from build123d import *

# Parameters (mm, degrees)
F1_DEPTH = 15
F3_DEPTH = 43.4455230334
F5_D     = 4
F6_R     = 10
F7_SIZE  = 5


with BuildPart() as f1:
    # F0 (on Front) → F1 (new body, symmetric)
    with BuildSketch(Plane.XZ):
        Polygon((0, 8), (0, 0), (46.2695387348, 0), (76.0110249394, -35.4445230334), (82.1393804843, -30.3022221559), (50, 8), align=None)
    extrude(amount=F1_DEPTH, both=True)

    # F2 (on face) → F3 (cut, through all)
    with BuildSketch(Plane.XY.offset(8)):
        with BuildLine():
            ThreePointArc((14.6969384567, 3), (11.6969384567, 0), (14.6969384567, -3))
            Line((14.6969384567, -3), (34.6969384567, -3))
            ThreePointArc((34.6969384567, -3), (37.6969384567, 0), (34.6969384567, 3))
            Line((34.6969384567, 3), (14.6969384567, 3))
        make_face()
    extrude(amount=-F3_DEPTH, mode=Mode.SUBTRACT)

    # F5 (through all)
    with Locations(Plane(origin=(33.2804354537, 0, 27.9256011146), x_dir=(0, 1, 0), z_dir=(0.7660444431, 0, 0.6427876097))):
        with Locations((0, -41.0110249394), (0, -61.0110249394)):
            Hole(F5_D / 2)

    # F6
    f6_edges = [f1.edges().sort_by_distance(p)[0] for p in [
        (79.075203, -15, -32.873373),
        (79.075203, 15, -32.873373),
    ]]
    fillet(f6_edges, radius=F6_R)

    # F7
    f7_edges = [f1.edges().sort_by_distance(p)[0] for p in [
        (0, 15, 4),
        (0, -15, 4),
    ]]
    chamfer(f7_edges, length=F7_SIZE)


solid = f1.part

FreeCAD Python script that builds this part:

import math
import FreeCAD as App
import Part
import Sketcher
from FreeCAD import Vector
Q = App.Units.Quantity


def edges_at(feature, points):
    """Names of the edges that pass closest to the given points."""
    edges = feature.Shape.Edges
    near = lambda p: min(range(len(edges)), key=lambda i: edges[i].distToShape(Part.Vertex(*p))[0])
    return sorted({f"Edge{near(p) + 1}" for p in points})


def add_polygon(sketch, points):
    """Adds a closed chain of lines whose ends are joined by coincident constraints."""
    first, n = sketch.GeometryCount, len(points)
    for a, b in zip(points, points[1:] + points[:1]):
        sketch.addGeometry(Part.LineSegment(App.Vector(*a, 0), App.Vector(*b, 0)), False)
    for i in range(n):
        sketch.addConstraint(Sketcher.Constraint("Coincident", first + i, 2, first + (i + 1) % n, 1))

doc = App.newDocument("Part")
params = doc.addObject("Spreadsheet::Sheet", "Params")
for row, (alias, value) in enumerate([
    ("sketch1_width", "50 mm"),
    ("sketch1_height", "8 mm"),
    ("sketch1_length", "8 mm"),
    ("sketch1_length2", "50 mm"),
    ("pad1_length", "30 mm"),
    ("sketch2_radius", "3 mm"),
    ("sketch2_width", "20 mm"),
    ("sketch3_diameter", "4 mm"),
    ("hole_diameter", "4 mm"),
    ("fillet_radius", "10 mm"),
    ("chamfer_size", "5 mm"),
], start=1):
    params.set(f"A{row}", alias)
    params.set(f"B{row}", "=" + value)
    params.setAlias(f"B{row}", alias)

body = doc.addObject("PartDesign::Body", "Body")

# Sketch on XZ plane
sketch1 = doc.addObject("Sketcher::SketchObject", "Sketch")
body.addObject(sketch1)
sketch1.AttachmentSupport = (doc.XZ_Plane, [""])
sketch1.MapMode = "FlatFace"
add_polygon(sketch1, [(0, 8), (0, 0), (46.269539, 0), (76.011025, -35.444523), (82.13938, -30.302222), (50, 8)])  # lines 0-5
sketch1.addConstraint(Sketcher.Constraint("Vertical", 0))
sketch1.addConstraint(Sketcher.Constraint("Horizontal", 1))
sketch1.addConstraint(Sketcher.Constraint("Horizontal", 5))
sketch1.addConstraint(Sketcher.Constraint("Coincident", 0, 2, -1, 1))
sketch1.addConstraint(Sketcher.Constraint("Perpendicular", 2, 3))
sketch1.addConstraint(Sketcher.Constraint("Perpendicular", 3, 4))
sketch1.addConstraint(Sketcher.Constraint("DistanceX", 5, 2, 5, 1, Q("50 mm")))
sketch1.addConstraint(Sketcher.Constraint("DistanceY", 0, 2, 0, 1, Q("8 mm")))
sketch1.addConstraint(Sketcher.Constraint("Angle", 2, Q("-50 deg")))
sketch1.addConstraint(Sketcher.Constraint("Distance", 3, Q("8 mm")))
sketch1.addConstraint(Sketcher.Constraint("Distance", 4, Q("50 mm")))
sketch1.setExpression("Constraints[12]", "Params.sketch1_width")
sketch1.setExpression("Constraints[13]", "Params.sketch1_height")
sketch1.setExpression("Constraints[15]", "Params.sketch1_length")
sketch1.setExpression("Constraints[16]", "Params.sketch1_length2")
pad1 = doc.addObject("PartDesign::Pad", "Pad")
body.addObject(pad1)
pad1.Profile = sketch1
pad1.setExpression("Length", "Params.pad1_length")
pad1.Midplane = True

# Sketch on XY plane
sketch2 = doc.addObject("Sketcher::SketchObject", "Sketch001")
body.addObject(sketch2)
sketch2.AttachmentSupport = (doc.XY_Plane, [""])
sketch2.MapMode = "FlatFace"
sketch2.AttachmentOffset = App.Placement(Vector(0, 0, 8), App.Rotation())
sketch2.addGeometry(Part.ArcOfCircle(Part.Circle(Vector(14.696938, 0, 0), Vector(0, 0, 1), 3), math.radians(90), math.radians(270)), False)
sketch2.addGeometry(Part.LineSegment(Vector(14.696938, -3, 0), Vector(34.696938, -3, 0)), False)
sketch2.addGeometry(Part.ArcOfCircle(Part.Circle(Vector(34.696938, 0, 0), Vector(0, 0, 1), 3), math.radians(-90), math.radians(90)), False)
sketch2.addGeometry(Part.LineSegment(Vector(34.696938, 3, 0), Vector(14.696938, 3, 0)), False)
sketch2.addConstraint(Sketcher.Constraint("Tangent", 0, 2, 1, 1))
sketch2.addConstraint(Sketcher.Constraint("Tangent", 1, 2, 2, 1))
sketch2.addConstraint(Sketcher.Constraint("Tangent", 2, 2, 3, 1))
sketch2.addConstraint(Sketcher.Constraint("Tangent", 3, 2, 0, 1))
sketch2.addConstraint(Sketcher.Constraint("Horizontal", 1))
sketch2.addConstraint(Sketcher.Constraint("Horizontal", 3))
sketch2.addConstraint(Sketcher.Constraint("PointOnObject", 0, 3, -1))
sketch2.addConstraint(Sketcher.Constraint("Radius", 0, Q("3 mm")))
sketch2.addConstraint(Sketcher.Constraint("DistanceX", 1, 1, 1, 2, Q("20 mm")))
sketch2.addConstraint(Sketcher.Constraint("DistanceX", -1, 1, 0, 3, Q("14.696938 mm")))
sketch2.setExpression("Constraints[7]", "Params.sketch2_radius")
sketch2.setExpression("Constraints[8]", "Params.sketch2_width")
pocket1 = doc.addObject("PartDesign::Pocket", "Pocket")
body.addObject(pocket1)
pocket1.Profile = sketch2
pocket1.Type = "ThroughAll"

# Sketch on an angled plane
sketch3 = doc.addObject("Sketcher::SketchObject", "Sketch002")
body.addObject(sketch3)
sketch3.Placement = App.Placement(Vector(33.280435, 0, 27.925601), App.Rotation(Vector(0, 1, 0), Vector(-0.64278761, 0, 0.766044443), Vector(0.766044443, 0, 0.64278761), "ZXY"))
sketch3.addGeometry(Part.Circle(Vector(0, -41.011025, 0), Vector(0, 0, 1), 2), False)
sketch3.addGeometry(Part.Circle(Vector(0, -61.011025, 0), Vector(0, 0, 1), 2), False)
sketch3.addConstraint(Sketcher.Constraint("Equal", 0, 1))
sketch3.addConstraint(Sketcher.Constraint("PointOnObject", 0, 3, -2))
sketch3.addConstraint(Sketcher.Constraint("PointOnObject", 1, 3, -2))
sketch3.addConstraint(Sketcher.Constraint("Diameter", 0, Q("4 mm")))
sketch3.addConstraint(Sketcher.Constraint("DistanceY", 1, 3, 0, 3, Q("20 mm")))
sketch3.addConstraint(Sketcher.Constraint("DistanceY", 0, 3, -1, 1, Q("41.011025 mm")))
sketch3.setExpression("Constraints[3]", "Params.sketch3_diameter")
doc.recompute()
hole = doc.addObject("PartDesign::Hole", "Hole")
body.addObject(hole)
hole.Profile = sketch3
hole.ThreadType = "None"
hole.setExpression("Diameter", "Params.hole_diameter")
hole.DepthType = "ThroughAll"
doc.recompute()

fillet = doc.addObject("PartDesign::Fillet", "Fillet")
body.addObject(fillet)
fillet.Base = (hole, edges_at(hole, [(79.075, -15, -32.873), (79.075, 15, -32.873)]))
fillet.setExpression("Radius", "Params.fillet_radius")
doc.recompute()

chamfer = doc.addObject("PartDesign::Chamfer", "Chamfer")
body.addObject(chamfer)
chamfer.Base = (fillet, edges_at(fillet, [(0, 15, 4), (0, -15, 4)]))
chamfer.setExpression("Size", "Params.chamfer_size")

doc.recompute()
